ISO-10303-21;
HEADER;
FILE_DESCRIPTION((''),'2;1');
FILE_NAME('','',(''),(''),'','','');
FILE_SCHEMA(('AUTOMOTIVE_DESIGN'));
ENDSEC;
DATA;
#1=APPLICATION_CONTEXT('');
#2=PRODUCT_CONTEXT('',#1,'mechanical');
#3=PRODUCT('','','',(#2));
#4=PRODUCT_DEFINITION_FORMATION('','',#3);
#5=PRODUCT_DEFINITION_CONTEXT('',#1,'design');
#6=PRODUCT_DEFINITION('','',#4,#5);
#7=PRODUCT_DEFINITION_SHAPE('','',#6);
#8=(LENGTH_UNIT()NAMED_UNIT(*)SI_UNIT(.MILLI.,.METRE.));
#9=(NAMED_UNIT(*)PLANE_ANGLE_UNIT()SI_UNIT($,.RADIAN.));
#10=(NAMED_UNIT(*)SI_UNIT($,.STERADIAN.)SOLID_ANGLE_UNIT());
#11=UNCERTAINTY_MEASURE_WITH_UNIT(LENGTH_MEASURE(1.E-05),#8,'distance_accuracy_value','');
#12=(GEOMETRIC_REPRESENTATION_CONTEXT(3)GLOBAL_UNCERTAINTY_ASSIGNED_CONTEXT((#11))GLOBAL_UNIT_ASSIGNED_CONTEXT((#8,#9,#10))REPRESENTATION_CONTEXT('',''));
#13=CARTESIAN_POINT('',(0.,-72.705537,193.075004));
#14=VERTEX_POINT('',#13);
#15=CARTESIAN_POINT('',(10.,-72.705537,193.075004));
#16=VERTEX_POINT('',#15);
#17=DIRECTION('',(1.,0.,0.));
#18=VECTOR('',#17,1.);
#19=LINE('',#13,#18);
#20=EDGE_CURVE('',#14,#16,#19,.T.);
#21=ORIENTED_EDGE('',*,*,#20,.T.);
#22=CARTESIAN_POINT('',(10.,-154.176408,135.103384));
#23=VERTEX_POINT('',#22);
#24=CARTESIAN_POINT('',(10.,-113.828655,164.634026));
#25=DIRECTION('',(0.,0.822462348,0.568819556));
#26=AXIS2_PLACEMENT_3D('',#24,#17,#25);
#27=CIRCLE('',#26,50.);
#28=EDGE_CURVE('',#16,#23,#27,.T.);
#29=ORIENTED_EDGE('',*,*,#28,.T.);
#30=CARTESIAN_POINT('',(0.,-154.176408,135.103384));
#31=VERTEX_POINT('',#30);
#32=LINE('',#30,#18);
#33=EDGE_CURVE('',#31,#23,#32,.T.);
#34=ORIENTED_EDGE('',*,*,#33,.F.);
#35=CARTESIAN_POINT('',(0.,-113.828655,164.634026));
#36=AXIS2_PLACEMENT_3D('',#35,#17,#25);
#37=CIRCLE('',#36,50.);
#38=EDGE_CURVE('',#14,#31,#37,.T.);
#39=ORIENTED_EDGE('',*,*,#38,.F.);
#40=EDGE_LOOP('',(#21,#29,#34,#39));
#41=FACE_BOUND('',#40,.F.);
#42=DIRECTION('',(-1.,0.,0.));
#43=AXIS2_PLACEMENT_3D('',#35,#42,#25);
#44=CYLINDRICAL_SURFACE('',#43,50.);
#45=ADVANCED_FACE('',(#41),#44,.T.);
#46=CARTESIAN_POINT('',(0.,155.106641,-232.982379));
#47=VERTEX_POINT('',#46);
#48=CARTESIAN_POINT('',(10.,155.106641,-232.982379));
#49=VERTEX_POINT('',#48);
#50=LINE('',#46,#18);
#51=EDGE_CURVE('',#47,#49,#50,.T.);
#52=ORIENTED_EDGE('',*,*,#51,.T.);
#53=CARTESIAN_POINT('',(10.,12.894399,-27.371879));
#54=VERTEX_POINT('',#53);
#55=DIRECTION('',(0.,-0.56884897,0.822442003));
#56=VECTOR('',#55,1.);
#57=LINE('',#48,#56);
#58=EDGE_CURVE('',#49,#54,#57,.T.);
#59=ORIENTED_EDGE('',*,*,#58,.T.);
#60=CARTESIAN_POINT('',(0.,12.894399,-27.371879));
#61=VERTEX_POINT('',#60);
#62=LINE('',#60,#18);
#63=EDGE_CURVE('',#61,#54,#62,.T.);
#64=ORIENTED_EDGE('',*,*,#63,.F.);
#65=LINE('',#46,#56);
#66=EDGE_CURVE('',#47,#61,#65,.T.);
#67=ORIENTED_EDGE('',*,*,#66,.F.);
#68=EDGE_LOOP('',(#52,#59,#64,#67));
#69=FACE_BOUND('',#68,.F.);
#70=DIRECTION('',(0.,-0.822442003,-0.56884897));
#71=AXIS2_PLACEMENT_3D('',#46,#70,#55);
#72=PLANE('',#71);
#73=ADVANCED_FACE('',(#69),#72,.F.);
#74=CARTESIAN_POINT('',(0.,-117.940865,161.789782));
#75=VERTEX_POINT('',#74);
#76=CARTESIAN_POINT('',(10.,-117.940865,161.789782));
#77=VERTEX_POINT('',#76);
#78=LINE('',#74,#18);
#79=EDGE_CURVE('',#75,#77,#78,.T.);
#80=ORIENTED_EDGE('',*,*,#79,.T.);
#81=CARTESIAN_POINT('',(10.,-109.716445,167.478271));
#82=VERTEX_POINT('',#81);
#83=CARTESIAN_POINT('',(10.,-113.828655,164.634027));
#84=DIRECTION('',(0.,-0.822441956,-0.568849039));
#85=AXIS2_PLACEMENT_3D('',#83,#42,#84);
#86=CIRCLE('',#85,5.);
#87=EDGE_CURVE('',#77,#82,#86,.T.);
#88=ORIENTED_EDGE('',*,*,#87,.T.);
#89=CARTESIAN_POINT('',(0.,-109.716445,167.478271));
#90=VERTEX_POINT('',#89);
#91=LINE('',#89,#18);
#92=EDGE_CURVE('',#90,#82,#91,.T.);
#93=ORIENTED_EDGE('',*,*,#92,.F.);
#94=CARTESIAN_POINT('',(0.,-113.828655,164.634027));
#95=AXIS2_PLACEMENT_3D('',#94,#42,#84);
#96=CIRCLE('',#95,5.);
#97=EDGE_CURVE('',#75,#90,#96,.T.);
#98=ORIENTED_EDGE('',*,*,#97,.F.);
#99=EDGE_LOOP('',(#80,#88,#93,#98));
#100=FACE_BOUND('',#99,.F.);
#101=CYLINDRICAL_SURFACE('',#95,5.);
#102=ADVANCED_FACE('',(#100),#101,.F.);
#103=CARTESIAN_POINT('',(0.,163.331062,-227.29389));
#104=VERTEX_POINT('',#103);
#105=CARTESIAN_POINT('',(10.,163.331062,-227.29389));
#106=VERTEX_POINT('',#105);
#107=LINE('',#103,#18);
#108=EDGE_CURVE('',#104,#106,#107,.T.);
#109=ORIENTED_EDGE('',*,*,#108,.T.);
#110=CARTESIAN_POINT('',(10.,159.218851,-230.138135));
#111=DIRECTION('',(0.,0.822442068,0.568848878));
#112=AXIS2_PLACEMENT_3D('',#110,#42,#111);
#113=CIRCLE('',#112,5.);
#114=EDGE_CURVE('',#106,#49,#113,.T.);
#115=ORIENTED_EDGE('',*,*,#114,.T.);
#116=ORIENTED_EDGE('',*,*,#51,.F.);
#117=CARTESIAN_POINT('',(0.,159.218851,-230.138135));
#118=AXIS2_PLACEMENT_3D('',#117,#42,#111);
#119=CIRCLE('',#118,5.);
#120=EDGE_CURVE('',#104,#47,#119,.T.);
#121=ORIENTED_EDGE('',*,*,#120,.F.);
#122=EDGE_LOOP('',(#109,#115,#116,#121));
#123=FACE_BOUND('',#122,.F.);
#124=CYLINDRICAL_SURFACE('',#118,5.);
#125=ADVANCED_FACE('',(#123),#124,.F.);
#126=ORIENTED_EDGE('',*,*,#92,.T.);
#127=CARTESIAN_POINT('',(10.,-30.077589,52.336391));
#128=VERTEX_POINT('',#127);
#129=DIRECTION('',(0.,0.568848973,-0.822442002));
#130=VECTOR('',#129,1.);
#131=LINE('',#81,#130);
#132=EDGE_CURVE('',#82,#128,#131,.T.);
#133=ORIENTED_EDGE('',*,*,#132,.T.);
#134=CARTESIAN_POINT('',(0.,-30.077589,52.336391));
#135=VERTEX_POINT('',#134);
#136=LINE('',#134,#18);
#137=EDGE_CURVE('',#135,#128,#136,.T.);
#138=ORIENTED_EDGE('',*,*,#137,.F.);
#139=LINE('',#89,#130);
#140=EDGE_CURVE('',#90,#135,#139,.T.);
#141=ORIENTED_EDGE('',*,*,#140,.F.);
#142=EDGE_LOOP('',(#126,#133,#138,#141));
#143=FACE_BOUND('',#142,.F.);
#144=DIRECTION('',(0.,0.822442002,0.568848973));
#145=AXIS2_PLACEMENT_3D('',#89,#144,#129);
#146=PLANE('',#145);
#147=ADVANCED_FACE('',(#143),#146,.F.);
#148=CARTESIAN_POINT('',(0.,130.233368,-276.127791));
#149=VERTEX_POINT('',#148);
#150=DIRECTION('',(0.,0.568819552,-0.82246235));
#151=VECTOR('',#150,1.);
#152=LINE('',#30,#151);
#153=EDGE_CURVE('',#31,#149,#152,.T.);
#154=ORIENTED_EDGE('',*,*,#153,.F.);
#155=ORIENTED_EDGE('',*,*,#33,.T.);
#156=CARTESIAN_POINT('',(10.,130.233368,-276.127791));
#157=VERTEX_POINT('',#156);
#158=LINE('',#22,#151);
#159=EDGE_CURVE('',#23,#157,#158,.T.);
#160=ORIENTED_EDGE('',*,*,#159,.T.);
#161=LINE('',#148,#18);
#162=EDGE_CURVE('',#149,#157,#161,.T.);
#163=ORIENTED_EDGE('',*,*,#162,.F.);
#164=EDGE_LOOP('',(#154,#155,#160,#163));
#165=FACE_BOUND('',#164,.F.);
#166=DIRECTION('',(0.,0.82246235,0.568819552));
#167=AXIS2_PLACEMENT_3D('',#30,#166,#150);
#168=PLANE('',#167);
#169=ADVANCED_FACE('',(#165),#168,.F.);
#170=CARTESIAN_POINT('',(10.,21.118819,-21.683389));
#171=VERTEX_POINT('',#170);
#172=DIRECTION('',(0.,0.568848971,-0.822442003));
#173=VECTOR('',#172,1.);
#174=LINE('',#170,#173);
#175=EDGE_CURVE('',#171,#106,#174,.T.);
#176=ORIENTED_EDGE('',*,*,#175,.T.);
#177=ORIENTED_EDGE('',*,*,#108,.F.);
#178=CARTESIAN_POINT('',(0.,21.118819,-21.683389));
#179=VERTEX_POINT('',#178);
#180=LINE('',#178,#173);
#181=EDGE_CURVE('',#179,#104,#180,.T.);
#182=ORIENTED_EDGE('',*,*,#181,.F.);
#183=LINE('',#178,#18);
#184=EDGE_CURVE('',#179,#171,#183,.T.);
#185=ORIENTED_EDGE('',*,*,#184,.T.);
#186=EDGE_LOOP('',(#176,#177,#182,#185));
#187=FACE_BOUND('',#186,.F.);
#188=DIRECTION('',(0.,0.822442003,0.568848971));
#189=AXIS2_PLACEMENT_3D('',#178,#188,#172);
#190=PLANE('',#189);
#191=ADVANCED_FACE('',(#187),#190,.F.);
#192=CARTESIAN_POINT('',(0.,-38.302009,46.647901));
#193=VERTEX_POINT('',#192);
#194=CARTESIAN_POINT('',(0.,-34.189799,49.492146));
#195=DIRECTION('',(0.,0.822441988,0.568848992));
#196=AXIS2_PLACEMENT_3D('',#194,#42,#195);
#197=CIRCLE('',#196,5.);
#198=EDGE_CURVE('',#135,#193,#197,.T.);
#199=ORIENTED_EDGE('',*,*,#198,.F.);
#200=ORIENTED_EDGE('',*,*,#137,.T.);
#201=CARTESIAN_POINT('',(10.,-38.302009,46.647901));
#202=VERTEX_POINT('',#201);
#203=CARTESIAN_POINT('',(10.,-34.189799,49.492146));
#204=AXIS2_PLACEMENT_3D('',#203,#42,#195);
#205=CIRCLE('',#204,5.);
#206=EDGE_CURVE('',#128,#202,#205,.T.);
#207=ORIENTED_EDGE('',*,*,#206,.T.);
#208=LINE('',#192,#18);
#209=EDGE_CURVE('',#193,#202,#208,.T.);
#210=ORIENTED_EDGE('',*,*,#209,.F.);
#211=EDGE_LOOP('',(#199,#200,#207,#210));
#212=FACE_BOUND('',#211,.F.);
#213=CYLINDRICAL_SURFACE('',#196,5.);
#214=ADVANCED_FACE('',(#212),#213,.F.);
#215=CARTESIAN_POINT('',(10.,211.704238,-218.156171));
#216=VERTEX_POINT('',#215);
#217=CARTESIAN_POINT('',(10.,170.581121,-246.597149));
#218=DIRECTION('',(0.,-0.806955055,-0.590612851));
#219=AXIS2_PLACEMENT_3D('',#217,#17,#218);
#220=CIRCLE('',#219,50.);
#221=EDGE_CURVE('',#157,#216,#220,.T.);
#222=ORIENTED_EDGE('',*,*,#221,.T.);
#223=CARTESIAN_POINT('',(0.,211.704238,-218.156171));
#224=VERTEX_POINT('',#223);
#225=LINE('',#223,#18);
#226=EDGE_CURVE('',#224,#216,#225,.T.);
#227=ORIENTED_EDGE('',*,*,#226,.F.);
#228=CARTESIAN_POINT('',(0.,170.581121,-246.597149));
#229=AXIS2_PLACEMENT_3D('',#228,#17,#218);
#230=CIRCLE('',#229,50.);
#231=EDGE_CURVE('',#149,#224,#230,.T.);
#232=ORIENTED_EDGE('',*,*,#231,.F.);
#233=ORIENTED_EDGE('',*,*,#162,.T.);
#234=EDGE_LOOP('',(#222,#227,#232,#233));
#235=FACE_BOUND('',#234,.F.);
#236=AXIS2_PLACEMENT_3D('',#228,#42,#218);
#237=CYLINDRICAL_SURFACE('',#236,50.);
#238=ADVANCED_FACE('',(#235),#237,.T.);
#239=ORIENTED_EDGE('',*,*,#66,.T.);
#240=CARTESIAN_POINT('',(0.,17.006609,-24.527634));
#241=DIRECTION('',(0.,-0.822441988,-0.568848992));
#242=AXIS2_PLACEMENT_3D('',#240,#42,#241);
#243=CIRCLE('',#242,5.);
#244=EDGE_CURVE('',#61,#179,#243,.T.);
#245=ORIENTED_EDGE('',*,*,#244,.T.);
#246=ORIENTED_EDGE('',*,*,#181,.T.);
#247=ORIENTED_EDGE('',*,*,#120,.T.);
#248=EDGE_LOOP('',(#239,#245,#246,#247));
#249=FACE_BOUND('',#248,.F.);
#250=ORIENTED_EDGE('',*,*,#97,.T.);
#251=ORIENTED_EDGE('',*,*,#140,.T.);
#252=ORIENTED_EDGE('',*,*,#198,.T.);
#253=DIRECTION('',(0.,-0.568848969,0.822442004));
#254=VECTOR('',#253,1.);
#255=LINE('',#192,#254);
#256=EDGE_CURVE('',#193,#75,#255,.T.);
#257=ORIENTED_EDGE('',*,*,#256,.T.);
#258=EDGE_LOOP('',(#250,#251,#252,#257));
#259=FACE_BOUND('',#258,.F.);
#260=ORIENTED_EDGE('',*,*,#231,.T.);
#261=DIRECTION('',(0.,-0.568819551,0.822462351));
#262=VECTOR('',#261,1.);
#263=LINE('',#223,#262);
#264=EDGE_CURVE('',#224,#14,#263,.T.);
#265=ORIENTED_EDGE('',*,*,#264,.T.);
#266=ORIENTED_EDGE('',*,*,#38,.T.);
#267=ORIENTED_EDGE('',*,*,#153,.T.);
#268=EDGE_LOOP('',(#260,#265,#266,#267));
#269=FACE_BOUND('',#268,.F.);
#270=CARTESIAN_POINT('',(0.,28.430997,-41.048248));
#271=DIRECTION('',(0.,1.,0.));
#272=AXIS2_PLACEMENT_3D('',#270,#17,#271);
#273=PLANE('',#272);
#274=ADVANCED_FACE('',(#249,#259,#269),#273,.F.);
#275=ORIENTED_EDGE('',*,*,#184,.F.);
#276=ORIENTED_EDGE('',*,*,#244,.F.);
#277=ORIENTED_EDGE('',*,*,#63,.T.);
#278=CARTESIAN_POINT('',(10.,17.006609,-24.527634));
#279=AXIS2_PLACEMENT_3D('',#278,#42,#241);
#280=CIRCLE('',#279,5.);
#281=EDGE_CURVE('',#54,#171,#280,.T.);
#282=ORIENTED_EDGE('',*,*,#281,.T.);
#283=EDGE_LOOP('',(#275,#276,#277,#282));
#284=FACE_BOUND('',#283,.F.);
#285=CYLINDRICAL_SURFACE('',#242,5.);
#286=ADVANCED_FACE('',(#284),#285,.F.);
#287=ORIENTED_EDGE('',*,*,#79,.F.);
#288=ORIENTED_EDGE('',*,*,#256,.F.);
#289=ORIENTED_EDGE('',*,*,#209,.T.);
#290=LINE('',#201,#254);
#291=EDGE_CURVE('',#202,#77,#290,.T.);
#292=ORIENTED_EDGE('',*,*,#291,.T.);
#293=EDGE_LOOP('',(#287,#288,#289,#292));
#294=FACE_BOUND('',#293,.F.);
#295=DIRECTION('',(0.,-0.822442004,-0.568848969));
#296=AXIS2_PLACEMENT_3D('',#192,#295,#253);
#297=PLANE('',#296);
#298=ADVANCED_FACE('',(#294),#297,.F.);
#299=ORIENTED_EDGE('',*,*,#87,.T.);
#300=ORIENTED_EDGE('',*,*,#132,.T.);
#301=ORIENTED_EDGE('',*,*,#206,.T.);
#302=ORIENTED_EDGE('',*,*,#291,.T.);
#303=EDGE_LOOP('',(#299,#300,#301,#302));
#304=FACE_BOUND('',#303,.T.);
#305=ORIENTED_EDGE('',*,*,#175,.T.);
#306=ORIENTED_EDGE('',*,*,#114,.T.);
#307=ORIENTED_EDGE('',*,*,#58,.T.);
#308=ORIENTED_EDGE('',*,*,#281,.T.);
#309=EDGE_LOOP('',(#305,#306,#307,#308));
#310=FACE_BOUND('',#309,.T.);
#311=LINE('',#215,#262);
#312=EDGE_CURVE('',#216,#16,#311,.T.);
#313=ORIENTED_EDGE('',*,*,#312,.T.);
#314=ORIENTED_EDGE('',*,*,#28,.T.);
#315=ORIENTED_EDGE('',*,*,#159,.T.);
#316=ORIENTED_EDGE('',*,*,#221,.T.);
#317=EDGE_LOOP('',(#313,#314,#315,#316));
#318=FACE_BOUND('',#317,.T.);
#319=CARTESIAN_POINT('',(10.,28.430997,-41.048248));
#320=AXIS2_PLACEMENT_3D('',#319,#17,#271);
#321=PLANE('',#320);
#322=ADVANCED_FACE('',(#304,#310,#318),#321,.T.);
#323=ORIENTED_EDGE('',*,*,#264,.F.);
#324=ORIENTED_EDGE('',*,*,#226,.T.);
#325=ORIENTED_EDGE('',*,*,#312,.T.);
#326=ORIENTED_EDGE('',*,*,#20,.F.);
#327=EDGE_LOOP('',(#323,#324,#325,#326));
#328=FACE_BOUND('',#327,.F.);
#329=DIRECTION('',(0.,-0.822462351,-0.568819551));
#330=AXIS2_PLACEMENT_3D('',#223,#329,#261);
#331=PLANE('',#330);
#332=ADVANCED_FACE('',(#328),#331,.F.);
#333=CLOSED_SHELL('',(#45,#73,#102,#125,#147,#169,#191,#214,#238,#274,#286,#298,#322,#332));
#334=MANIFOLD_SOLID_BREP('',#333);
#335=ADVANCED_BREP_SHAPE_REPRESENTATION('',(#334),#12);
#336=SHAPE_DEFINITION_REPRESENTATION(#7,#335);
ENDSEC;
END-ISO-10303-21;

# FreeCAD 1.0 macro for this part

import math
import FreeCAD as App
import Part
import Sketcher
Q = App.Units.Quantity

doc = App.newDocument("Part")
body = doc.addObject("PartDesign::Body", "Body")

sketch1 = body.newObject("Sketcher::SketchObject", "Sketch")
sketch1.AttachmentSupport = (doc.getObject("YZ_Plane"), [""])
sketch1.MapMode = "FlatFace"
sketch1.addGeometry(Part.LineSegment(App.Vector(211.704238, -218.156171, 0), App.Vector(-72.705537, 193.075004, 0)), False)
sketch1.addGeometry(Part.ArcOfCircle(Part.Circle(App.Vector(-113.828655, 164.634026, 0), App.Vector(0, 0, 1), 50), math.radians(34.667951), math.radians(216.200509)), False)
sketch1.addGeometry(Part.LineSegment(App.Vector(-154.176408, 135.103384, 0), App.Vector(130.233368, -276.127791, 0)), False)
sketch1.addGeometry(Part.ArcOfCircle(Part.Circle(App.Vector(170.581121, -246.597149, 0), App.Vector(0, 0, 1), 50), math.radians(-143.79949), math.radians(34.667951)), False)
sketch1.addGeometry(Part.LineSegment(App.Vector(155.106641, -232.982379, 0), App.Vector(12.894399, -27.371879, 0)), False)
sketch1.addGeometry(Part.ArcOfCircle(Part.Circle(App.Vector(17.006609, -24.527634, 0), App.Vector(0, 0, 1), 5), math.radians(34.670001), math.radians(214.670001)), False)
sketch1.addGeometry(Part.LineSegment(App.Vector(21.118819, -21.683389, 0), App.Vector(163.331062, -227.29389, 0)), False)
sketch1.addGeometry(Part.ArcOfCircle(Part.Circle(App.Vector(159.218851, -230.138135, 0), App.Vector(0, 0, 1), 5), math.radians(-145.330007), math.radians(34.669993)), False)
sketch1.addGeometry(Part.ArcOfCircle(Part.Circle(App.Vector(-34.189799, 49.492146, 0), App.Vector(0, 0, 1), 5), math.radians(-145.329999), math.radians(34.670001)), False)
sketch1.addGeometry(Part.LineSegment(App.Vector(-38.302009, 46.647901, 0), App.Vector(-117.940865, 161.789782, 0)), False)
sketch1.addGeometry(Part.ArcOfCircle(Part.Circle(App.Vector(-113.828655, 164.634027, 0), App.Vector(0, 0, 1), 5), math.radians(34.669989), math.radians(214.670005)), False)
sketch1.addGeometry(Part.LineSegment(App.Vector(-109.716445, 167.478271, 0), App.Vector(-30.077589, 52.336391, 0)), False)
sketch1.addConstraint(Sketcher.Constraint("Tangent", 0, 2, 1, 1))
sketch1.addConstraint(Sketcher.Constraint("Coincident", 1, 2, 2, 1))
sketch1.addConstraint(Sketcher.Constraint("Coincident", 2, 2, 3, 1))
sketch1.addConstraint(Sketcher.Constraint("Tangent", 3, 2, 0, 1))
sketch1.addConstraint(Sketcher.Constraint("Tangent", 4, 2, 5, 2))
sketch1.addConstraint(Sketcher.Constraint("Tangent", 5, 1, 6, 1))
sketch1.addConstraint(Sketcher.Constraint("Tangent", 6, 2, 7, 2))
sketch1.addConstraint(Sketcher.Constraint("Tangent", 7, 1, 4, 1))
sketch1.addConstraint(Sketcher.Constraint("Tangent", 8, 1, 9, 1))
sketch1.addConstraint(Sketcher.Constraint("Tangent", 9, 2, 10, 2))
sketch1.addConstraint(Sketcher.Constraint("Tangent", 10, 1, 11, 1))
sketch1.addConstraint(Sketcher.Constraint("Tangent", 11, 2, 8, 2))
sketch1.addConstraint(Sketcher.Constraint("Coincident", 10, 3, 1, 3))
sketch1.addConstraint(Sketcher.Constraint("Equal", 1, 3))
sketch1.addConstraint(Sketcher.Constraint("Equal", 5, 7))
sketch1.addConstraint(Sketcher.Constraint("Equal", 7, 8))
sketch1.addConstraint(Sketcher.Constraint("Equal", 8, 10))
sketch1.addConstraint(Sketcher.Constraint("Parallel", 0, 2))
sketch1.addConstraint(Sketcher.Constraint("Parallel", 6, 9))
sketch1.addConstraint(Sketcher.Constraint("Radius", 1, 50.0))
sketch1.addConstraint(Sketcher.Constraint("Radius", 5, 5.0))
sketch1.addConstraint(Sketcher.Constraint("Distance", 0, 499.999999))
sketch1.addConstraint(Sketcher.Constraint("Distance", 4, 249.999999))
sketch1.addConstraint(Sketcher.Constraint("Distance", 9, 140.000001))
sketch1.addConstraint(Sketcher.Constraint("Angle", 4, Q("124.67 deg")))
sketch1.addConstraint(Sketcher.Constraint("DistanceX", 8, 3, -1, 1, 34.189799))
sketch1.addConstraint(Sketcher.Constraint("DistanceX", -1, 1, 4, 2, 12.894399))
sketch1.addConstraint(Sketcher.Constraint("DistanceY", -1, 1, 8, 1, 46.647901))
sketch1.addConstraint(Sketcher.Constraint("DistanceY", 2, 2, 6, 2, 48.833901))
sketch1.addConstraint(Sketcher.Constraint("DistanceX", -1, 1, 3, 3, 170.581121))
sketch1.addConstraint(Sketcher.Constraint("DistanceX", -1, 1, 2, 2, 130.233368))
pad1 = body.newObject("PartDesign::Pad", "Pad")
pad1.Profile = sketch1
pad1.Length = 10

doc.recompute()
